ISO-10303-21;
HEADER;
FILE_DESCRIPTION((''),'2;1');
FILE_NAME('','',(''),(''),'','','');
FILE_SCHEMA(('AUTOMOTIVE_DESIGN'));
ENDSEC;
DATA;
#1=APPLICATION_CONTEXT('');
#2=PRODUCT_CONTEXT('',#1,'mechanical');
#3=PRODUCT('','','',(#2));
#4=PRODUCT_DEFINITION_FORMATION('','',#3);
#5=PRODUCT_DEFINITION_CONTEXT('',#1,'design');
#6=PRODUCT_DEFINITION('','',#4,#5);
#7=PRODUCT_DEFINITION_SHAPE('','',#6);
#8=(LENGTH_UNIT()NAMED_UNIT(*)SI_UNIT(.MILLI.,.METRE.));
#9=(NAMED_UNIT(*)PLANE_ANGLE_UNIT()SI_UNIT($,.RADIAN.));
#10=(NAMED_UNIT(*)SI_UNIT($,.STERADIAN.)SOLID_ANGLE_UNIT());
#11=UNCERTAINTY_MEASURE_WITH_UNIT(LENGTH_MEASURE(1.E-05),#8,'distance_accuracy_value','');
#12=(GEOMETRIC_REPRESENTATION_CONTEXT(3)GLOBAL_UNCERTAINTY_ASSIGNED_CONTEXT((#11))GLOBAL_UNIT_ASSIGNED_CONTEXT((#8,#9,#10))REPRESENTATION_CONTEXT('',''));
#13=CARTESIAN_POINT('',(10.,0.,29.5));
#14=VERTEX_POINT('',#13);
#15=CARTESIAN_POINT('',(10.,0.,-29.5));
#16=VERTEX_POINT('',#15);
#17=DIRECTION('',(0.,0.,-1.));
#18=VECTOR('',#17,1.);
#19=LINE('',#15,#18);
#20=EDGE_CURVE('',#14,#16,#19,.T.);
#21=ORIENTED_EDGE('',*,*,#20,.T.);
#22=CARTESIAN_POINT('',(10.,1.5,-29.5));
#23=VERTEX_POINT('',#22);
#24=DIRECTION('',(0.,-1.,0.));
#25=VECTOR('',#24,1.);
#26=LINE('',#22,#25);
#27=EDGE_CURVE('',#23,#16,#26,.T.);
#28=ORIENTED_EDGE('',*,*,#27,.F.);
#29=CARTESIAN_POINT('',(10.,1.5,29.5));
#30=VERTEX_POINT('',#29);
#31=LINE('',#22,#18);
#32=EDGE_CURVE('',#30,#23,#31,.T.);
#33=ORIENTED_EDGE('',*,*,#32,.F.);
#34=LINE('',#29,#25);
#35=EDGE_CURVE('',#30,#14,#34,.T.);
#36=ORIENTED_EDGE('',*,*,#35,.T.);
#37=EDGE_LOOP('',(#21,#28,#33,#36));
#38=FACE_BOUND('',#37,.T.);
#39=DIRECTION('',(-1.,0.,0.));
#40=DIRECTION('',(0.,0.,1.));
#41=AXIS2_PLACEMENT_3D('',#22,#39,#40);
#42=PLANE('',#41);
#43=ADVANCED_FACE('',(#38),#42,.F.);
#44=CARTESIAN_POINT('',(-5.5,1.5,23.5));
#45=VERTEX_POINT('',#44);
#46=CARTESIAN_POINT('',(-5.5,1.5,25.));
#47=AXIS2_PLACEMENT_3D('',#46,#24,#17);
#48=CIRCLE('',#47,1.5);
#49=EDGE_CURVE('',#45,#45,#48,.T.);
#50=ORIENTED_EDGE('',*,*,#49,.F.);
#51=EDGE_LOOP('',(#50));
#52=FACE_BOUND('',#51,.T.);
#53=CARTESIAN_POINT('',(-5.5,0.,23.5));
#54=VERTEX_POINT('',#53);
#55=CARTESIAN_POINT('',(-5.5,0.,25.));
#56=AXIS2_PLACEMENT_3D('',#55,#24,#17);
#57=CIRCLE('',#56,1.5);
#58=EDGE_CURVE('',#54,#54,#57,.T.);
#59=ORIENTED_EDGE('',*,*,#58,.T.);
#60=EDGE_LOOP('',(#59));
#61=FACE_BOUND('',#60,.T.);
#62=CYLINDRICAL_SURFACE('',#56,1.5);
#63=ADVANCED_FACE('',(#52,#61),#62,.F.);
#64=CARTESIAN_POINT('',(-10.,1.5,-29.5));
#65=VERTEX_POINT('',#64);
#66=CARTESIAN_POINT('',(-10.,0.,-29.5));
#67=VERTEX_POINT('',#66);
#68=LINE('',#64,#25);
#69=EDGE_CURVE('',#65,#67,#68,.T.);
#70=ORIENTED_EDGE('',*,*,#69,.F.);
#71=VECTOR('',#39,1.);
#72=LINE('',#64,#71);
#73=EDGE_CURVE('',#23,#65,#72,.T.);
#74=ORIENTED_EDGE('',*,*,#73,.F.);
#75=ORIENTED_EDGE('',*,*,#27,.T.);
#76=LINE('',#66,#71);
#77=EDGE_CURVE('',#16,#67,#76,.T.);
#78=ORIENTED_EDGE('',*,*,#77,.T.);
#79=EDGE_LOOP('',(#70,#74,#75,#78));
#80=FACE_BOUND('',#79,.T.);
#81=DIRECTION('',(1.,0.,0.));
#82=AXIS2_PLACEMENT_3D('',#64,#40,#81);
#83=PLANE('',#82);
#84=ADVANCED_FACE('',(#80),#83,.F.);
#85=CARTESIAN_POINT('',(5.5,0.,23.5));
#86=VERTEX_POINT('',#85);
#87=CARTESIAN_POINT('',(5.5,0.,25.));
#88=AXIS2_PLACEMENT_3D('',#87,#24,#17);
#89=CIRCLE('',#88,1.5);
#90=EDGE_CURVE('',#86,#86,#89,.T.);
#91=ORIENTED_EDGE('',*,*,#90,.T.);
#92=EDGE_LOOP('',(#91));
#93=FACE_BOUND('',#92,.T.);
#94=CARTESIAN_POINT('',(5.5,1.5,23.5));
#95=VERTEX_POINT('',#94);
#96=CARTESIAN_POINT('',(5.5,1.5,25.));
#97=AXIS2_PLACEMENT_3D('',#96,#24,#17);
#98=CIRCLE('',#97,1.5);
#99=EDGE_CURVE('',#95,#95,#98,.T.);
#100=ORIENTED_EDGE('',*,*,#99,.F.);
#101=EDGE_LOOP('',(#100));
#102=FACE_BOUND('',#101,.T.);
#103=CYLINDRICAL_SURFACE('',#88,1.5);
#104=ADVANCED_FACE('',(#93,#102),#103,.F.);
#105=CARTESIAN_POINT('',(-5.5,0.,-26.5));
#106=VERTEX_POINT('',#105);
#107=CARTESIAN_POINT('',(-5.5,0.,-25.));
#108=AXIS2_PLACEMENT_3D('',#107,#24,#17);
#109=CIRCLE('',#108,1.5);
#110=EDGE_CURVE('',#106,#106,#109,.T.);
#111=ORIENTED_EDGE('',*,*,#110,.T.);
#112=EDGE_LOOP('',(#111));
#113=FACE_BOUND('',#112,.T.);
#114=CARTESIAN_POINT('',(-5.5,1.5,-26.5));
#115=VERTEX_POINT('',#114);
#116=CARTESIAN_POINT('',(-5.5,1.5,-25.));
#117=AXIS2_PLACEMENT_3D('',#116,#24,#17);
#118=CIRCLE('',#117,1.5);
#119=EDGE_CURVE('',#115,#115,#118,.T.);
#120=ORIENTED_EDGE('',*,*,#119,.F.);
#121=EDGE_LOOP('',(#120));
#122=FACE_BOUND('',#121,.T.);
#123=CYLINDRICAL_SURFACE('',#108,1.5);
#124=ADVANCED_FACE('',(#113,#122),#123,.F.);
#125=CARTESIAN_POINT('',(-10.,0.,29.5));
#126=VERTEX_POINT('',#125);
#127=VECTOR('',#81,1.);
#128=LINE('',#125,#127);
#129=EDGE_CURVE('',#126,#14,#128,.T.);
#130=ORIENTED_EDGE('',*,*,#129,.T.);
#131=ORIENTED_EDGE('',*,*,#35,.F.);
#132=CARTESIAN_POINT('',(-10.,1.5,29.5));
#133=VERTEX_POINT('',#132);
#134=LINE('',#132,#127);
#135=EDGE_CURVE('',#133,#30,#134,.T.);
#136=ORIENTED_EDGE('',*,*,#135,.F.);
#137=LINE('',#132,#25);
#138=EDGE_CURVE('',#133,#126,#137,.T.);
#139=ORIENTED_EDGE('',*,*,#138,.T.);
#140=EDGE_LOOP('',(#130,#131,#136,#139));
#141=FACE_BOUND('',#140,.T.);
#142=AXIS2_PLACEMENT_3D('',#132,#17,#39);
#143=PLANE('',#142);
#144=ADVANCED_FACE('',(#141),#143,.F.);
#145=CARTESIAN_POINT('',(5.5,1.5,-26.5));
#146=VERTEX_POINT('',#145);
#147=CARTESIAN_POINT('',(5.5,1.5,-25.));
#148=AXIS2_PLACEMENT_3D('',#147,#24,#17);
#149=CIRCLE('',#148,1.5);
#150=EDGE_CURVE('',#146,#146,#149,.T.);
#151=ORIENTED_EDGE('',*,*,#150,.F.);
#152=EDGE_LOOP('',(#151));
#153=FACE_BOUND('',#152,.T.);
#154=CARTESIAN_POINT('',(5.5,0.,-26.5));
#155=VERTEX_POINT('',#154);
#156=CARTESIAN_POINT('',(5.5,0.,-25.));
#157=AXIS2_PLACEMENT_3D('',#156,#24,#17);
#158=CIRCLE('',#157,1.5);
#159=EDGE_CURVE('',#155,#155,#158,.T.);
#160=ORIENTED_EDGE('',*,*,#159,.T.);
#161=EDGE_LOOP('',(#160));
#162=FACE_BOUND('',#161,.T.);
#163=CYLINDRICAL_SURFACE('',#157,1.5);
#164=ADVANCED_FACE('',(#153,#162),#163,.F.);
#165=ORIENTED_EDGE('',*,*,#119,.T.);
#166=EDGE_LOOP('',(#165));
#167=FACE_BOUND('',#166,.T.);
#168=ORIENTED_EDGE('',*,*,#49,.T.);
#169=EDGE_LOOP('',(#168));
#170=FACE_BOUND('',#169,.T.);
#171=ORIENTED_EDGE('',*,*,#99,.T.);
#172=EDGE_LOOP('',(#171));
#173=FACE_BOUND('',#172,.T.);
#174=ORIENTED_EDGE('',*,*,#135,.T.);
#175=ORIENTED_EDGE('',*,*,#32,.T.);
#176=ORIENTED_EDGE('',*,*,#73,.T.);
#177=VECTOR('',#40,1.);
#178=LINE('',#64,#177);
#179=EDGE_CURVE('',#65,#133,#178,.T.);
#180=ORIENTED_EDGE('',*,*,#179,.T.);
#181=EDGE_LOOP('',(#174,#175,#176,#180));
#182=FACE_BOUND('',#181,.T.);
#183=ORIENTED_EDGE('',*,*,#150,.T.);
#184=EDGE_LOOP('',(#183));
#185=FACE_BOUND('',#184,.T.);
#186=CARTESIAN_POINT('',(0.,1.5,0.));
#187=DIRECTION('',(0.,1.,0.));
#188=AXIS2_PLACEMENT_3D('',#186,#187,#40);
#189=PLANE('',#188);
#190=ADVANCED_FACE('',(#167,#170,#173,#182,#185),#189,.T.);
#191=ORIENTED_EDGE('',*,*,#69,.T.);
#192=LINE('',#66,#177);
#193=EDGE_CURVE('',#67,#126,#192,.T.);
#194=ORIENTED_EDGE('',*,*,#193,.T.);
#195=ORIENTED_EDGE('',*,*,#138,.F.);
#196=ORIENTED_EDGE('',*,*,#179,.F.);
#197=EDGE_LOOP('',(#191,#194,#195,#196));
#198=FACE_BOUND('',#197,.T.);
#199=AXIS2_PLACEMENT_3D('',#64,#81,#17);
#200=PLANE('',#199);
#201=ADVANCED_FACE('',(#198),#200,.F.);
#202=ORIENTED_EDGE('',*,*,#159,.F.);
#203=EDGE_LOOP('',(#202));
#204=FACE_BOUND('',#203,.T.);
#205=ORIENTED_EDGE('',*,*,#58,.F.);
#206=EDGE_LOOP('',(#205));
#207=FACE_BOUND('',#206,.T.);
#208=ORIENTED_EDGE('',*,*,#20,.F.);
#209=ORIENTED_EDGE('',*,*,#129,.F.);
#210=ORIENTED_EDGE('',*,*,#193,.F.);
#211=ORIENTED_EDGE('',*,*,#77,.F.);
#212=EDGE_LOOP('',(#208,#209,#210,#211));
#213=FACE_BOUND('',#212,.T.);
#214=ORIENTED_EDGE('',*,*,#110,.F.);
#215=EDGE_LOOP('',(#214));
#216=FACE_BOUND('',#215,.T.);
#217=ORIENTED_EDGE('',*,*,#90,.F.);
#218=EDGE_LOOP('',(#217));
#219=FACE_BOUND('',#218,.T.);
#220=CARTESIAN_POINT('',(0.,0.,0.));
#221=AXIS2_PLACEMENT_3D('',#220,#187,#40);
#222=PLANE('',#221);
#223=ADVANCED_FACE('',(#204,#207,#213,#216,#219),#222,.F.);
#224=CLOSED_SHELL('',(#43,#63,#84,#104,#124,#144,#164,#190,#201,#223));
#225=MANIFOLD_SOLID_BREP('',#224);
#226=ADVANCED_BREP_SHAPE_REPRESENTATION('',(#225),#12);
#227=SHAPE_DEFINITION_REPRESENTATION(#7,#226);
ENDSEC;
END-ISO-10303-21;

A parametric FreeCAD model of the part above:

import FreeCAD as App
import Part
import Sketcher
from FreeCAD import Vector

doc = App.newDocument("Part")
body = doc.addObject("PartDesign::Body", "Body")

# Sketch on XZ plane
sketch1 = body.newObject("Sketcher::SketchObject", "Sketch")
sketch1.AttachmentSupport = (doc.getObject("XZ_Plane"), [""])
sketch1.MapMode = "FlatFace"
sketch1.addGeometry(Part.LineSegment(Vector(-10, -30, 0), Vector(-10, 30, 0)), False)
sketch1.addGeometry(Part.LineSegment(Vector(-10, 30, 0), Vector(10, 30, 0)), False)
sketch1.addGeometry(Part.LineSegment(Vector(10, 30, 0), Vector(10, -30, 0)), False)
sketch1.addGeometry(Part.LineSegment(Vector(10, -30, 0), Vector(-10, -30, 0)), False)
sketch1.addConstraint(Sketcher.Constraint("Coincident", 0, 2, 1, 1))
sketch1.addConstraint(Sketcher.Constraint("Coincident", 1, 2, 2, 1))
sketch1.addConstraint(Sketcher.Constraint("Coincident", 2, 2, 3, 1))
sketch1.addConstraint(Sketcher.Constraint("Coincident", 3, 2, 0, 1))
sketch1.addConstraint(Sketcher.Constraint("Vertical", 0))
sketch1.addConstraint(Sketcher.Constraint("Horizontal", 1))
sketch1.addConstraint(Sketcher.Constraint("Vertical", 2))
sketch1.addConstraint(Sketcher.Constraint("Horizontal", 3))
sketch1.addConstraint(Sketcher.Constraint("Symmetric", 0, 2, 2, 2, -1, 1))
sketch1.addConstraint(Sketcher.Constraint("DistanceX", 1, 1, 1, 2, 20.0))
sketch1.addConstraint(Sketcher.Constraint("DistanceY", 0, 1, 0, 2, 59.0))
pad1 = body.newObject("PartDesign::Pad", "Pad")
pad1.Profile = sketch1
pad1.Length = 1.5
pad1.Reversed = True

# Sketch on XZ plane
sketch2 = body.newObject("Sketcher::SketchObject", "Sketch001")
sketch2.AttachmentSupport = (doc.getObject("XZ_Plane"), [""])
sketch2.MapMode = "FlatFace"
sketch2.addGeometry(Part.Circle(Vector(-5.5, 25, 0), Vector(0, 0, 1), 1.5), False)
sketch2.addGeometry(Part.Circle(Vector(5.5, 25, 0), Vector(0, 0, 1), 1.5), False)
sketch2.addGeometry(Part.Circle(Vector(-5.5, -25, 0), Vector(0, 0, 1), 1.5), False)
sketch2.addGeometry(Part.Circle(Vector(5.5, -25, 0), Vector(0, 0, 1), 1.5), False)
sketch2.addConstraint(Sketcher.Constraint("Equal", 0, 1))
sketch2.addConstraint(Sketcher.Constraint("Equal", 1, 2))
sketch2.addConstraint(Sketcher.Constraint("Equal", 2, 3))
sketch2.addConstraint(Sketcher.Constraint("Symmetric", 1, 3, 2, 3, -1, 1))
sketch2.addConstraint(Sketcher.Constraint("Symmetric", 0, 3, 3, 3, -1, 1))
sketch2.addConstraint(Sketcher.Constraint("Symmetric", 0, 3, 1, 3, -2))
sketch2.addConstraint(Sketcher.Constraint("Diameter", 0, 3.0))
sketch2.addConstraint(Sketcher.Constraint("DistanceY", -1, 1, 0, 3, 25.0))
sketch2.addConstraint(Sketcher.Constraint("DistanceX", 0, 3, 1, 3, 11.0))
doc.recompute()
hole = body.newObject("PartDesign::Hole", "Hole")
hole.Profile = sketch2
hole.ThreadType = "None"
hole.Diameter = 3
hole.DepthType = "ThroughAll"

doc.recompute()
